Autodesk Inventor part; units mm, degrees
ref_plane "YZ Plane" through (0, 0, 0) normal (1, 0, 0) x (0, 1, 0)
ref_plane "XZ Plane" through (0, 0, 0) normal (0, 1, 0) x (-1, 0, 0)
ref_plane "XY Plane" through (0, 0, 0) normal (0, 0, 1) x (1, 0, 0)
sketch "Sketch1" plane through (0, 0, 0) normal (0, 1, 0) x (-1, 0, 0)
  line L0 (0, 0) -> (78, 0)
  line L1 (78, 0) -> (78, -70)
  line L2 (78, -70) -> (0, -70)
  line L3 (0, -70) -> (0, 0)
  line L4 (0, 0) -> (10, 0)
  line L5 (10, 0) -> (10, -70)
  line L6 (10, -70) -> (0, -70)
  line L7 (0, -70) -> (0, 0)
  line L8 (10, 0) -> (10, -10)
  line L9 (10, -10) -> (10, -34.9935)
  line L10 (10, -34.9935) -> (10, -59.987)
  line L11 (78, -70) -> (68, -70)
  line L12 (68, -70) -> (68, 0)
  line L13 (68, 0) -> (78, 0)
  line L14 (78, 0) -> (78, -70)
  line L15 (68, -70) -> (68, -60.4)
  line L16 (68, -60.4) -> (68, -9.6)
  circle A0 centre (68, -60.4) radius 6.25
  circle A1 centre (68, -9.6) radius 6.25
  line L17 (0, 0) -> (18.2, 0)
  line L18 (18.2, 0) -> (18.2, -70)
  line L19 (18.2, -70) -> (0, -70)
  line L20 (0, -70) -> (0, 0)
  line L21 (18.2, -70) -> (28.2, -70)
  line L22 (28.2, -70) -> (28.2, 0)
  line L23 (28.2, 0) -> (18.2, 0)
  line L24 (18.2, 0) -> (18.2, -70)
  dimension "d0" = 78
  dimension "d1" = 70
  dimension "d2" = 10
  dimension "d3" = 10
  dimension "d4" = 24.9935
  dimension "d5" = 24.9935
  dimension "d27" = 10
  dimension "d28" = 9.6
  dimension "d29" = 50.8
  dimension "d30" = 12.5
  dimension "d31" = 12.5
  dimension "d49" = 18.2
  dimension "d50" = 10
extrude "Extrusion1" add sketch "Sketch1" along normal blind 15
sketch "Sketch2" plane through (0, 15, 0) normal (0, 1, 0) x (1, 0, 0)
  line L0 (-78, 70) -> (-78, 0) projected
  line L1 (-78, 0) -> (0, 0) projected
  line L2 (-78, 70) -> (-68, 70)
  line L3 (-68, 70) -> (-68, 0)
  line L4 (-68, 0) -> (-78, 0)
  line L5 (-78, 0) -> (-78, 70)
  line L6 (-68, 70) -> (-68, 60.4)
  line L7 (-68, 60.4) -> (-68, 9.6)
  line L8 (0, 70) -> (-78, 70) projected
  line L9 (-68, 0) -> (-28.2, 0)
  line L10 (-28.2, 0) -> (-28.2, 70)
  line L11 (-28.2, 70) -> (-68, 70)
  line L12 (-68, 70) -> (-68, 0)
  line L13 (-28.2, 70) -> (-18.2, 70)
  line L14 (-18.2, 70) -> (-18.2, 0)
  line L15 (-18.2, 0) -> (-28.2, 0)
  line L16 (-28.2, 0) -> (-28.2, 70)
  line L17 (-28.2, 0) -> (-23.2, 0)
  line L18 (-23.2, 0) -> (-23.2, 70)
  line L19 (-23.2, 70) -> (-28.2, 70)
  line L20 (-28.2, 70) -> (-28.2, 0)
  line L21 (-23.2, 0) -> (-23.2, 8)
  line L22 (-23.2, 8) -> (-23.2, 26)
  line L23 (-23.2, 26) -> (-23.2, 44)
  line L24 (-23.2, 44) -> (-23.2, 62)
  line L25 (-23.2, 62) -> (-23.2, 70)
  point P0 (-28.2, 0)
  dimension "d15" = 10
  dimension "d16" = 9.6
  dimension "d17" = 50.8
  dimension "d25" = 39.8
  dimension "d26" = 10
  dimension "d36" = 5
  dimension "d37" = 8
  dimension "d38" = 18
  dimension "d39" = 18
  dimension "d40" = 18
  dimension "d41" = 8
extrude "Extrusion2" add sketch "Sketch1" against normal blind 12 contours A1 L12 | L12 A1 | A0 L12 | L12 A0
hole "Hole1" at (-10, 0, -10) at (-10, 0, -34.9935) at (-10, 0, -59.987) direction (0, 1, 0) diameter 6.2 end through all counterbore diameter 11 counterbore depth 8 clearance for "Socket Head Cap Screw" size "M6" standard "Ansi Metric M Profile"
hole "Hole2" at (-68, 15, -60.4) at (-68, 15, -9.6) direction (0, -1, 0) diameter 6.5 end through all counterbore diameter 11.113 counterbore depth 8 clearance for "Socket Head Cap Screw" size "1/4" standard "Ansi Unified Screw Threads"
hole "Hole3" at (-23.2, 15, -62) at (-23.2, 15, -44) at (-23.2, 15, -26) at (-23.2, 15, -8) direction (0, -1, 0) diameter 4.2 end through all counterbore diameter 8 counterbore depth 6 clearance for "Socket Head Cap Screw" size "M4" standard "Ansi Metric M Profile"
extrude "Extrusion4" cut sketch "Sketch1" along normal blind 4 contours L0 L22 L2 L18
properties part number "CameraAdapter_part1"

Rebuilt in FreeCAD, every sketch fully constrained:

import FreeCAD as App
import Part
import Sketcher

V = App.Vector
Q = App.Units.Quantity


def add_polygon(sketch, points):
    """Adds a closed chain of lines whose ends are joined by coincident constraints."""
    first, n = sketch.GeometryCount, len(points)
    for a, b in zip(points, points[1:] + points[:1]):
        sketch.addGeometry(Part.LineSegment(App.Vector(*a, 0), App.Vector(*b, 0)), False)
    for i in range(n):
        sketch.addConstraint(Sketcher.Constraint("Coincident", first + i, 2, first + (i + 1) % n, 1))

doc = App.newDocument("Part")
body = doc.addObject("PartDesign::Body", "Body")

sketch1 = body.newObject("Sketcher::SketchObject", "Sketch")
sketch1.AttachmentSupport = (doc.getObject("XZ_Plane"), [""])
sketch1.MapMode = "FlatFace"
add_polygon(sketch1, [(0, 0), (0, -70), (-78, -70), (-78, 0)])
sketch1.addConstraint([
    Sketcher.Constraint("Vertical", 0),
    Sketcher.Constraint("Horizontal", 1),
    Sketcher.Constraint("Vertical", 2),
    Sketcher.Constraint("Horizontal", 3),
    Sketcher.Constraint("Coincident", 3, 2, -1, 1),
    Sketcher.Constraint("DistanceX", 1, 2, 1, 1, Q("78 mm")),
    Sketcher.Constraint("DistanceY", 0, 2, 0, 1, Q("70 mm")),
])
pad1 = body.newObject("PartDesign::Pad", "Pad")
pad1.Profile = sketch1
pad1.Length = 15
pad1.Reversed = True

sketch2 = body.newObject("Sketcher::SketchObject", "Sketch001")
sketch2.AttachmentSupport = (doc.getObject("XZ_Plane"), [""])
sketch2.MapMode = "FlatFace"
sketch2.addGeometry([
    Part.Circle(V(-68, -10, 0), V(0, 0, 1), 6),
    Part.Circle(V(-68, -60, 0), V(0, 0, 1), 6),
], False)
sketch2.addConstraint([
    Sketcher.Constraint("Equal", 0, 1),
    Sketcher.Constraint("Vertical", 0, 3, 1, 3),
    Sketcher.Constraint("Diameter", 0, Q("12.5 mm")),
    Sketcher.Constraint("DistanceY", 0, 3, -1, 1, Q("9.6 mm")),
    Sketcher.Constraint("DistanceY", 1, 3, 0, 3, Q("50.8 mm")),
    Sketcher.Constraint("DistanceX", 0, 3, -1, 1, Q("68 mm")),
])
pad2 = body.newObject("PartDesign::Pad", "Pad001")
pad2.Profile = sketch2
pad2.Length = 12

sketch3 = body.newObject("Sketcher::SketchObject", "Sketch002")
sketch3.AttachmentSupport = (doc.getObject("XZ_Plane"), [""])
sketch3.MapMode = "FlatFace"
sketch3.addGeometry([
    Part.Circle(V(-10, -10, 0), V(0, 0, 1), 3.1),
    Part.Circle(V(-10, -35, 0), V(0, 0, 1), 3.1),
    Part.Circle(V(-10, -60, 0), V(0, 0, 1), 3.1),
], False)
sketch3.addConstraint([
    Sketcher.Constraint("Equal", 0, 1),
    Sketcher.Constraint("Equal", 1, 2),
    Sketcher.Constraint("Vertical", 0, 3, 1, 3),
    Sketcher.Constraint("Vertical", 1, 3, 2, 3),
    Sketcher.Constraint("Diameter", 0, Q("6.2 mm")),
    Sketcher.Constraint("DistanceX", 0, 3, -1, 1, Q("10 mm")),
    Sketcher.Constraint("DistanceY", 0, 3, -1, 1, Q("10 mm")),
    Sketcher.Constraint("DistanceY", 2, 3, -1, 1, Q("59.987 mm")),
    Sketcher.Constraint("DistanceY", 1, 3, -1, 1, Q("34.9935 mm")),
])
doc.recompute()
hole = body.newObject("PartDesign::Hole", "Hole")
hole.Profile = sketch3
hole.ThreadType = "None"
hole.Diameter = 6.2
hole.DepthType = "ThroughAll"
hole.HoleCutType = "Counterbore"
hole.HoleCutDiameter = 11
hole.HoleCutDepth = 8

sketch4 = body.newObject("Sketcher::SketchObject", "Sketch003")
sketch4.AttachmentSupport = (doc.getObject("XZ_Plane"), [""])
sketch4.MapMode = "FlatFace"
sketch4.AttachmentOffset = App.Placement(V(0, 0, -15), App.Rotation())
sketch4.addGeometry([
    Part.Circle(V(-68, -60.4, 0), V(0, 0, 1), 3.2),
    Part.Circle(V(-68, -9.6, 0), V(0, 0, 1), 3.2),
], False)
sketch4.addConstraint([
    Sketcher.Constraint("Equal", 0, 1),
    Sketcher.Constraint("Vertical", 0, 3, 1, 3),
    Sketcher.Constraint("Diameter", 0, Q("6.5 mm")),
    Sketcher.Constraint("DistanceX", 0, 3, -1, 1, Q("68 mm")),
    Sketcher.Constraint("DistanceY", 0, 3, -1, 1, Q("60.4 mm")),
    Sketcher.Constraint("DistanceY", 1, 3, -1, 1, Q("9.6 mm")),
])
doc.recompute()
hole2 = body.newObject("PartDesign::Hole", "Hole001")
hole2.Profile = sketch4
hole2.ThreadType = "None"
hole2.Diameter = 6.5
hole2.DepthType = "ThroughAll"
hole2.HoleCutType = "Counterbore"
hole2.HoleCutDiameter = 11.113
hole2.HoleCutDepth = 8
hole2.Reversed = True

sketch5 = body.newObject("Sketcher::SketchObject", "Sketch004")
sketch5.AttachmentSupport = (doc.getObject("XZ_Plane"), [""])
sketch5.MapMode = "FlatFace"
sketch5.AttachmentOffset = App.Placement(V(0, 0, -15), App.Rotation())
sketch5.addGeometry([
    Part.Circle(V(-23.2, -62, 0), V(0, 0, 1), 2.1),
    Part.Circle(V(-23.2, -44, 0), V(0, 0, 1), 2.1),
    Part.Circle(V(-23.2, -26, 0), V(0, 0, 1), 2.1),
    Part.Circle(V(-23.2, -8, 0), V(0, 0, 1), 2.1),
], False)
sketch5.addConstraint([
    Sketcher.Constraint("Equal", 0, 1),
    Sketcher.Constraint("Equal", 1, 2),
    Sketcher.Constraint("Equal", 2, 3),
    Sketcher.Constraint("Vertical", 0, 3, 1, 3),
    Sketcher.Constraint("Vertical", 1, 3, 2, 3),
    Sketcher.Constraint("Vertical", 2, 3, 3, 3),
    Sketcher.Constraint("Diameter", 0, Q("4.2 mm")),
    Sketcher.Constraint("DistanceY", 0, 3, -1, 1, Q("62 mm")),
    Sketcher.Constraint("DistanceY", 1, 3, -1, 1, Q("44 mm")),
    Sketcher.Constraint("DistanceY", 2, 3, -1, 1, Q("26 mm")),
    Sketcher.Constraint("DistanceY", 3, 3, -1, 1, Q("8 mm")),
    Sketcher.Constraint("DistanceX", 0, 3, -1, 1, Q("23.2 mm")),
])
doc.recompute()
hole3 = body.newObject("PartDesign::Hole", "Hole002")
hole3.Profile = sketch5
hole3.ThreadType = "None"
hole3.Diameter = 4.2
hole3.DepthType = "ThroughAll"
hole3.HoleCutType = "Counterbore"
hole3.HoleCutDiameter = 8
hole3.HoleCutDepth = 6
hole3.Reversed = True

sketch6 = body.newObject("Sketcher::SketchObject", "Sketch005")
sketch6.AttachmentSupport = (doc.getObject("XZ_Plane"), [""])
sketch6.MapMode = "FlatFace"
add_polygon(sketch6, [(-28, 0), (-18, 0), (-18, -70), (-28, -70)])
sketch6.addConstraint([
    Sketcher.Constraint("Horizontal", 0),
    Sketcher.Constraint("Vertical", 1),
    Sketcher.Constraint("Horizontal", 2),
    Sketcher.Constraint("Vertical", 3),
    Sketcher.Constraint("PointOnObject", 0, 2, -1),
    Sketcher.Constraint("DistanceX", 0, 1, 0, 2, Q("10 mm")),
    Sketcher.Constraint("DistanceY", 1, 2, 1, 1, Q("70 mm")),
    Sketcher.Constraint("DistanceX", 0, 2, -1, 1, Q("18.2 mm")),
])
pocket1 = body.newObject("PartDesign::Pocket", "Pocket")
pocket1.Profile = sketch6
pocket1.Length = 4

doc.recompute()
